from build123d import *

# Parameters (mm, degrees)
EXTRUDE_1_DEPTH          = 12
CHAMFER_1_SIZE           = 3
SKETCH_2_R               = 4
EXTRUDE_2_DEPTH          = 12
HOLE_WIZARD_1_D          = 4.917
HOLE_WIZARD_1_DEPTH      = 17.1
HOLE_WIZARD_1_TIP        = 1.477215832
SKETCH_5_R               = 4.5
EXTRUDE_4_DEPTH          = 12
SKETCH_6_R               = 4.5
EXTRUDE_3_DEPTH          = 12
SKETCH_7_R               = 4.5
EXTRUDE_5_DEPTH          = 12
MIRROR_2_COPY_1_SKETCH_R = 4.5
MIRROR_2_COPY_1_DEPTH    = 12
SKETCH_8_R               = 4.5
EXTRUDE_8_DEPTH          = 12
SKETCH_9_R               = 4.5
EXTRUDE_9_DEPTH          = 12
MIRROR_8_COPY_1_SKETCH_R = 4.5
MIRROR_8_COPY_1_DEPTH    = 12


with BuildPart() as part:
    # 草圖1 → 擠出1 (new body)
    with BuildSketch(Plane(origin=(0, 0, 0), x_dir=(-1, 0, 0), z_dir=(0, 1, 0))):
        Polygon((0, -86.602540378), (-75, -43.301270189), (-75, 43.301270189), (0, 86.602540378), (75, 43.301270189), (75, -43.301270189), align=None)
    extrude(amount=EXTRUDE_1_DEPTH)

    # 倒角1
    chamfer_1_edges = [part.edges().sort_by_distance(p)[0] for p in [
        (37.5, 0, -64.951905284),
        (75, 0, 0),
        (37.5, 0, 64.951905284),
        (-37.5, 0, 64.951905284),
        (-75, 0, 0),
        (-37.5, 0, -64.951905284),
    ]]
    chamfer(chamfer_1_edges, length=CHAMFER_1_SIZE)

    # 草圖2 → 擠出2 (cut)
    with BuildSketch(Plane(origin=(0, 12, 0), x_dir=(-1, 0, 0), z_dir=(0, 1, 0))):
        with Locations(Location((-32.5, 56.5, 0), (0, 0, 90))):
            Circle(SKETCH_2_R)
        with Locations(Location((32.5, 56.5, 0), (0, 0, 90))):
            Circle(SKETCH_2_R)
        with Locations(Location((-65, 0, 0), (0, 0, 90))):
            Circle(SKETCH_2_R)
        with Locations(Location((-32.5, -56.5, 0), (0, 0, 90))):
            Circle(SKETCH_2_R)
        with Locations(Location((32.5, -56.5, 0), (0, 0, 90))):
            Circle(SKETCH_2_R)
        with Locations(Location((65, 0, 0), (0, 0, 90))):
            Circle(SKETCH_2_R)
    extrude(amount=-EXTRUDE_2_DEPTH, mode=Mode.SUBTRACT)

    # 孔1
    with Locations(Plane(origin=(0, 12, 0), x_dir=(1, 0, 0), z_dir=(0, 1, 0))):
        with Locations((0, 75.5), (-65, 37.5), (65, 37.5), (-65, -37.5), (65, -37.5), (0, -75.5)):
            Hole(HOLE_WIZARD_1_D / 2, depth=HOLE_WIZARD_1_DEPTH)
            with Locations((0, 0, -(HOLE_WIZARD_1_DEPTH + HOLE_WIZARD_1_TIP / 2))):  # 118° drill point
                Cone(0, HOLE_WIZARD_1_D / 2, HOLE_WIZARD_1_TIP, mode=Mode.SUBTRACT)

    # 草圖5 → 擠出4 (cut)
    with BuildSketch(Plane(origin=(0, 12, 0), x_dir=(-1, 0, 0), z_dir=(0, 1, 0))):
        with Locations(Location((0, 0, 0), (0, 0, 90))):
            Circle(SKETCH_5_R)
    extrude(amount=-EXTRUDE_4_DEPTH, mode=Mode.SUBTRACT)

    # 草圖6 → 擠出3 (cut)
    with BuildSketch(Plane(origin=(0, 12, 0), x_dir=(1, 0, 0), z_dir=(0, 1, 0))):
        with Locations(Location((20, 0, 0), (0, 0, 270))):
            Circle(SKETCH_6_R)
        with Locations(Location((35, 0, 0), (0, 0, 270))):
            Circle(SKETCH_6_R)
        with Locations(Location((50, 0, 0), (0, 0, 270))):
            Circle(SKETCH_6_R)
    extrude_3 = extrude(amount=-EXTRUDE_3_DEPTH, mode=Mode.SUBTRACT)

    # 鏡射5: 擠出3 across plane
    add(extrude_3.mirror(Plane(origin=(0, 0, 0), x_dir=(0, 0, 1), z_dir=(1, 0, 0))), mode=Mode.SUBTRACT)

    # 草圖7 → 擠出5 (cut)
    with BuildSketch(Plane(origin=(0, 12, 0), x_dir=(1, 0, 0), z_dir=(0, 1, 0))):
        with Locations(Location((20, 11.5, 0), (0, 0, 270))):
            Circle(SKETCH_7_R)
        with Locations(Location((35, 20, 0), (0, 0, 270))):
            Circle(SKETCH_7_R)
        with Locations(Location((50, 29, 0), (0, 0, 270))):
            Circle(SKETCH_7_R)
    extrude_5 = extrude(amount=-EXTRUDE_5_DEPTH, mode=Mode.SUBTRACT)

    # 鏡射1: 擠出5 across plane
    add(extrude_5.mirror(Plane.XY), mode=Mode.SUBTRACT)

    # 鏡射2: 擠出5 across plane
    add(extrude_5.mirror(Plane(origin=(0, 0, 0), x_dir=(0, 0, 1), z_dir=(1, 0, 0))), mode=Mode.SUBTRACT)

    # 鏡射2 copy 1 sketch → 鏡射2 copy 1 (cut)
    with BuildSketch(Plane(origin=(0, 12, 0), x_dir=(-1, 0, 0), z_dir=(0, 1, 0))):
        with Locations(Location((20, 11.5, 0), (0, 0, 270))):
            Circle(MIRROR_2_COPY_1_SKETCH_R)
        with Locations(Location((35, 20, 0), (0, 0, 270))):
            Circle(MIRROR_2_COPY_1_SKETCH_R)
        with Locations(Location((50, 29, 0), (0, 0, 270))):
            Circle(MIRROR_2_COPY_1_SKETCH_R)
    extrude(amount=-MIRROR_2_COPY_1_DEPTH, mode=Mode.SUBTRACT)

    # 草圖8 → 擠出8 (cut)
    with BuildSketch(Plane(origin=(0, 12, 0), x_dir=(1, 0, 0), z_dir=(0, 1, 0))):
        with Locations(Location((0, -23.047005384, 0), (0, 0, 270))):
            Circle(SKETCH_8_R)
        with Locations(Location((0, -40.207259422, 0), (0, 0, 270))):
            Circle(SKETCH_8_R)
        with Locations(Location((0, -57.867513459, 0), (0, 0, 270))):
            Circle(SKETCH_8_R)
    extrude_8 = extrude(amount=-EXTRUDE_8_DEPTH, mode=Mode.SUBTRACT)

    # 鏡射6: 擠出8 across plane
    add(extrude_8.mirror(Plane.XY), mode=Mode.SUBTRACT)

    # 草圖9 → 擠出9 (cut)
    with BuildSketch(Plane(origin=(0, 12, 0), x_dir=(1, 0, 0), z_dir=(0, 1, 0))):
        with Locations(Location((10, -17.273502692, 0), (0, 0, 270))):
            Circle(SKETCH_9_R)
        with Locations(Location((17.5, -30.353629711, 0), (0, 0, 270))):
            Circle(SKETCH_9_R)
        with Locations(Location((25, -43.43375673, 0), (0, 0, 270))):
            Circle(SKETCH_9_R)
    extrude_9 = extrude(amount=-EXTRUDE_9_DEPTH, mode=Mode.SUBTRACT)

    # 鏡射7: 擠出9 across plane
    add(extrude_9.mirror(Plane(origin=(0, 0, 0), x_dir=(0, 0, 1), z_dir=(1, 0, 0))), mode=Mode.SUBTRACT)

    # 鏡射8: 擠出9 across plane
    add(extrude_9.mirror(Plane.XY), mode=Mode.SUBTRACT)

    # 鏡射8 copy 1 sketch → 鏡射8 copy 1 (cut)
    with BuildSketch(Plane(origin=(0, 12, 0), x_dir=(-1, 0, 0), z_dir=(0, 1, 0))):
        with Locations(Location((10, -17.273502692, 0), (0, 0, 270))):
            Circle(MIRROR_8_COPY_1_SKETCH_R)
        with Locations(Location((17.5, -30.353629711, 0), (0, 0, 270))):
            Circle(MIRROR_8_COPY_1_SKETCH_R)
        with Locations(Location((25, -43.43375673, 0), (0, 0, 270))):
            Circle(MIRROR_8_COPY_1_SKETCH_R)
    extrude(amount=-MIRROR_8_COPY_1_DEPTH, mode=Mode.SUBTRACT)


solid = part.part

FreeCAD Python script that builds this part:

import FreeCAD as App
import Part
import Sketcher
Q = App.Units.Quantity


def edges_at(feature, points):
    """Names of the edges that pass closest to the given points."""
    edges = feature.Shape.Edges
    near = lambda p: min(range(len(edges)), key=lambda i: edges[i].distToShape(Part.Vertex(*p))[0])
    return sorted({f"Edge{near(p) + 1}" for p in points})

doc = App.newDocument("Part")
body = doc.addObject("PartDesign::Body", "Body")

sketch1 = body.newObject("Sketcher::SketchObject", "Sketch")
sketch1.AttachmentSupport = (doc.getObject("XZ_Plane"), [""])
sketch1.MapMode = "FlatFace"
sketch1.addGeometry(Part.LineSegment(App.Vector(75, -43, 0), App.Vector(0, -87, 0)), False)
sketch1.addGeometry(Part.LineSegment(App.Vector(0, -87, 0), App.Vector(-75, -43, 0)), False)
sketch1.addGeometry(Part.LineSegment(App.Vector(-75, -43, 0), App.Vector(-75, 43, 0)), False)
sketch1.addGeometry(Part.LineSegment(App.Vector(-75, 43, 0), App.Vector(0, 87, 0)), False)
sketch1.addGeometry(Part.LineSegment(App.Vector(0, 87, 0), App.Vector(75, 43, 0)), False)
sketch1.addGeometry(Part.LineSegment(App.Vector(75, 43, 0), App.Vector(75, -43, 0)), False)
sketch1.addConstraint(Sketcher.Constraint("Coincident", 0, 2, 1, 1))
sketch1.addConstraint(Sketcher.Constraint("Coincident", 1, 2, 2, 1))
sketch1.addConstraint(Sketcher.Constraint("Coincident", 2, 2, 3, 1))
sketch1.addConstraint(Sketcher.Constraint("Coincident", 3, 2, 4, 1))
sketch1.addConstraint(Sketcher.Constraint("Coincident", 4, 2, 5, 1))
sketch1.addConstraint(Sketcher.Constraint("Coincident", 5, 2, 0, 1))
sketch1.addConstraint(Sketcher.Constraint("Vertical", 2))
sketch1.addConstraint(Sketcher.Constraint("Vertical", 5))
sketch1.addConstraint(Sketcher.Constraint("Symmetric", 0, 2, 3, 2, -1, 1))
sketch1.addConstraint(Sketcher.Constraint("Symmetric", 1, 2, 4, 2, -1, 1))
sketch1.addConstraint(Sketcher.Constraint("PointOnObject", 0, 2, -2))
sketch1.addConstraint(Sketcher.Constraint("Parallel", 0, 3))
sketch1.addConstraint(Sketcher.Constraint("Horizontal", 2, 2, 4, 2))
sketch1.addConstraint(Sketcher.Constraint("Angle", 0, Q("-150 deg")))
sketch1.addConstraint(Sketcher.Constraint("DistanceX", 1, 2, -1, 1, 75.0))
sketch1.addConstraint(Sketcher.Constraint("DistanceY", 2, 1, 2, 2, 86.60254))
pad1 = body.newObject("PartDesign::Pad", "Pad")
pad1.Profile = sketch1
pad1.Length = 12
pad1.Reversed = True
doc.recompute()

chamfer = body.newObject("PartDesign::Chamfer", "Chamfer")
chamfer.Base = (pad1, edges_at(pad1, [
    (37.5, 0, -64.952),
    (75, 0, 0),
    (37.5, 0, 64.952),
    (-37.5, 0, 64.952),
    (-75, 0, 0),
    (-37.5, 0, -64.952),
]))
chamfer.Size = 3

sketch2 = body.newObject("Sketcher::SketchObject", "Sketch001")
sketch2.AttachmentSupport = (doc.getObject("XZ_Plane"), [""])
sketch2.MapMode = "FlatFace"
sketch2.AttachmentOffset = App.Placement(App.Vector(0, 0, -12), App.Rotation())
sketch2.addGeometry(Part.Circle(App.Vector(32.5, 56.5, 0), App.Vector(0, 0, 1), 4), False)
sketch2.addGeometry(Part.Circle(App.Vector(-32.5, 56.5, 0), App.Vector(0, 0, 1), 4), False)
sketch2.addGeometry(Part.Circle(App.Vector(65, 0, 0), App.Vector(0, 0, 1), 4), False)
sketch2.addGeometry(Part.Circle(App.Vector(32.5, -56.5, 0), App.Vector(0, 0, 1), 4), False)
sketch2.addGeometry(Part.Circle(App.Vector(-32.5, -56.5, 0), App.Vector(0, 0, 1), 4), False)
sketch2.addGeometry(Part.Circle(App.Vector(-65, 0, 0), App.Vector(0, 0, 1), 4), False)
sketch2.addConstraint(Sketcher.Constraint("Equal", 0, 1))
sketch2.addConstraint(Sketcher.Constraint("Equal", 1, 2))
sketch2.addConstraint(Sketcher.Constraint("Equal", 2, 3))
sketch2.addConstraint(Sketcher.Constraint("Equal", 3, 4))
sketch2.addConstraint(Sketcher.Constraint("Equal", 4, 5))
sketch2.addConstraint(Sketcher.Constraint("Symmetric", 1, 3, 3, 3, -1, 1))
sketch2.addConstraint(Sketcher.Constraint("Symmetric", 0, 3, 4, 3, -1, 1))
sketch2.addConstraint(Sketcher.Constraint("Symmetric", 2, 3, 5, 3, -1, 1))
sketch2.addConstraint(Sketcher.Constraint("Symmetric", 0, 3, 1, 3, -2))
sketch2.addConstraint(Sketcher.Constraint("PointOnObject", 2, 3, -1))
sketch2.addConstraint(Sketcher.Constraint("Diameter", 0, 8.0))
sketch2.addConstraint(Sketcher.Constraint("DistanceX", -1, 1, 2, 3, 65.0))
sketch2.addConstraint(Sketcher.Constraint("DistanceX", 1, 3, 0, 3, 65.0))
sketch2.addConstraint(Sketcher.Constraint("DistanceY", 3, 3, 0, 3, 113.0))
pocket1 = body.newObject("PartDesign::Pocket", "Pocket")
pocket1.Profile = sketch2
pocket1.Length = 12
pocket1.Reversed = True

sketch3 = body.newObject("Sketcher::SketchObject", "Sketch002")
sketch3.AttachmentSupport = (doc.getObject("XZ_Plane"), [""])
sketch3.MapMode = "FlatFace"
sketch3.AttachmentOffset = App.Placement(App.Vector(0, 0, -12), App.Rotation())
sketch3.addGeometry(Part.Circle(App.Vector(0, -75.5, 0), App.Vector(0, 0, 1), 2.5), False)
sketch3.addGeometry(Part.Circle(App.Vector(-65, -37.5, 0), App.Vector(0, 0, 1), 2.5), False)
sketch3.addGeometry(Part.Circle(App.Vector(65, -37.5, 0), App.Vector(0, 0, 1), 2.5), False)
sketch3.addGeometry(Part.Circle(App.Vector(-65, 37.5, 0), App.Vector(0, 0, 1), 2.5), False)
sketch3.addGeometry(Part.Circle(App.Vector(65, 37.5, 0), App.Vector(0, 0, 1), 2.5), False)
sketch3.addGeometry(Part.Circle(App.Vector(0, 75.5, 0), App.Vector(0, 0, 1), 2.5), False)
sketch3.addConstraint(Sketcher.Constraint("Equal", 0, 1))
sketch3.addConstraint(Sketcher.Constraint("Equal", 1, 2))
sketch3.addConstraint(Sketcher.Constraint("Equal", 2, 3))
sketch3.addConstraint(Sketcher.Constraint("Equal", 3, 4))
sketch3.addConstraint(Sketcher.Constraint("Equal", 4, 5))
sketch3.addConstraint(Sketcher.Constraint("Symmetric", 2, 3, 3, 3, -1, 1))
sketch3.addConstraint(Sketcher.Constraint("Symmetric", 1, 3, 4, 3, -1, 1))
sketch3.addConstraint(Sketcher.Constraint("Symmetric", 0, 3, 5, 3, -1, 1))
sketch3.addConstraint(Sketcher.Constraint("Symmetric", 1, 3, 2, 3, -2))
sketch3.addConstraint(Sketcher.Constraint("PointOnObject", 0, 3, -2))
sketch3.addConstraint(Sketcher.Constraint("Diameter", 0, 4.917))
sketch3.addConstraint(Sketcher.Constraint("DistanceX", 1, 3, -1, 1, 65.0))
sketch3.addConstraint(Sketcher.Constraint("DistanceY", 0, 3, 1, 3, 38.0))
sketch3.addConstraint(Sketcher.Constraint("DistanceY", 1, 3, 3, 3, 75.0))
doc.recompute()
hole = body.newObject("PartDesign::Hole", "Hole")
hole.Profile = sketch3
hole.ThreadType = "None"
hole.Diameter = 4.917
hole.DepthType = "Dimension"
hole.Depth = 17.1
hole.DrillPoint = "Angled"
hole.DrillPointAngle = 118
hole.Reversed = True

sketch4 = body.newObject("Sketcher::SketchObject", "Sketch003")
sketch4.AttachmentSupport = (doc.getObject("XZ_Plane"), [""])
sketch4.MapMode = "FlatFace"
sketch4.AttachmentOffset = App.Placement(App.Vector(0, 0, -12), App.Rotation())
sketch4.addGeometry(Part.Circle(App.Vector(0, 0, 0), App.Vector(0, 0, 1), 4.5), False)
sketch4.addConstraint(Sketcher.Constraint("Coincident", 0, 3, -1, 1))
sketch4.addConstraint(Sketcher.Constraint("Diameter", 0, 9.0))
pocket2 = body.newObject("PartDesign::Pocket", "Pocket001")
pocket2.Profile = sketch4
pocket2.Length = 12
pocket2.Reversed = True

sketch5 = body.newObject("Sketcher::SketchObject", "Sketch004")
sketch5.AttachmentSupport = (doc.getObject("XZ_Plane"), [""])
sketch5.MapMode = "FlatFace"
sketch5.AttachmentOffset = App.Placement(App.Vector(0, 0, -12), App.Rotation())
sketch5.addGeometry(Part.Circle(App.Vector(20, 0, 0), App.Vector(0, 0, 1), 4.5), False)
sketch5.addGeometry(Part.Circle(App.Vector(35, 0, 0), App.Vector(0, 0, 1), 4.5), False)
sketch5.addGeometry(Part.Circle(App.Vector(50, 0, 0), App.Vector(0, 0, 1), 4.5), False)
sketch5.addConstraint(Sketcher.Constraint("Equal", 0, 1))
sketch5.addConstraint(Sketcher.Constraint("Equal", 1, 2))
sketch5.addConstraint(Sketcher.Constraint("PointOnObject", 0, 3, -1))
sketch5.addConstraint(Sketcher.Constraint("PointOnObject", 1, 3, -1))
sketch5.addConstraint(Sketcher.Constraint("PointOnObject", 2, 3, -1))
sketch5.addConstraint(Sketcher.Constraint("Diameter", 0, 9.0))
sketch5.addConstraint(Sketcher.Constraint("DistanceX", -1, 1, 0, 3, 20.0))
sketch5.addConstraint(Sketcher.Constraint("DistanceX", -1, 1, 1, 3, 35.0))
sketch5.addConstraint(Sketcher.Constraint("DistanceX", -1, 1, 2, 3, 50.0))
pocket3 = body.newObject("PartDesign::Pocket", "Pocket002")
pocket3.Profile = sketch5
pocket3.Length = 12
pocket3.Reversed = True
doc.recompute()

mirrored = body.newObject("PartDesign::Mirrored", "Mirrored")
mirrored.Originals = [pocket3]
mirrored.MirrorPlane = (doc.getObject("YZ_Plane"), [""])
body.Tip = mirrored

sketch6 = body.newObject("Sketcher::SketchObject", "Sketch005")
sketch6.AttachmentSupport = (doc.getObject("XZ_Plane"), [""])
sketch6.MapMode = "FlatFace"
sketch6.AttachmentOffset = App.Placement(App.Vector(0, 0, -12), App.Rotation())
sketch6.addGeometry(Part.Circle(App.Vector(20, -11.5, 0), App.Vector(0, 0, 1), 4.5), False)
sketch6.addGeometry(Part.Circle(App.Vector(35, -20, 0), App.Vector(0, 0, 1), 4.5), False)
sketch6.addGeometry(Part.Circle(App.Vector(50, -29, 0), App.Vector(0, 0, 1), 4.5), False)
sketch6.addConstraint(Sketcher.Constraint("Equal", 0, 1))
sketch6.addConstraint(Sketcher.Constraint("Equal", 1, 2))
sketch6.addConstraint(Sketcher.Constraint("Diameter", 0, 9.0))
sketch6.addConstraint(Sketcher.Constraint("DistanceX", -1, 1, 0, 3, 20.0))
sketch6.addConstraint(Sketcher.Constraint("DistanceX", -1, 1, 1, 3, 35.0))
sketch6.addConstraint(Sketcher.Constraint("DistanceY", 1, 3, -1, 1, 20.0))
sketch6.addConstraint(Sketcher.Constraint("DistanceX", -1, 1, 2, 3, 50.0))
sketch6.addConstraint(Sketcher.Constraint("DistanceY", 2, 3, -1, 1, 29.0))
sketch6.addConstraint(Sketcher.Constraint("DistanceY", 0, 3, -1, 1, 11.5))
pocket4 = body.newObject("PartDesign::Pocket", "Pocket003")
pocket4.Profile = sketch6
pocket4.Length = 12
pocket4.Reversed = True
doc.recompute()

mirrored2 = body.newObject("PartDesign::Mirrored", "Mirrored001")
mirrored2.Originals = [pocket4]
mirrored2.MirrorPlane = (doc.getObject("XY_Plane"), [""])
body.Tip = mirrored2
doc.recompute()

mirrored3 = body.newObject("PartDesign::Mirrored", "Mirrored002")
mirrored3.Originals = [pocket4]
mirrored3.MirrorPlane = (doc.getObject("YZ_Plane"), [""])
body.Tip = mirrored3

sketch7 = body.newObject("Sketcher::SketchObject", "Sketch006")
sketch7.AttachmentSupport = (doc.getObject("XZ_Plane"), [""])
sketch7.MapMode = "FlatFace"
sketch7.AttachmentOffset = App.Placement(App.Vector(0, 0, -12), App.Rotation())
sketch7.addGeometry(Part.Circle(App.Vector(-20, 11.5, 0), App.Vector(0, 0, 1), 4.5), False)
sketch7.addGeometry(Part.Circle(App.Vector(-35, 20, 0), App.Vector(0, 0, 1), 4.5), False)
sketch7.addGeometry(Part.Circle(App.Vector(-50, 29, 0), App.Vector(0, 0, 1), 4.5), False)
sketch7.addConstraint(Sketcher.Constraint("Equal", 0, 1))
sketch7.addConstraint(Sketcher.Constraint("Equal", 1, 2))
sketch7.addConstraint(Sketcher.Constraint("Diameter", 0, 9.0))
sketch7.addConstraint(Sketcher.Constraint("DistanceX", 0, 3, -1, 1, 20.0))
sketch7.addConstraint(Sketcher.Constraint("DistanceX", 1, 3, -1, 1, 35.0))
sketch7.addConstraint(Sketcher.Constraint("DistanceY", -1, 1, 1, 3, 20.0))
sketch7.addConstraint(Sketcher.Constraint("DistanceX", 2, 3, -1, 1, 50.0))
sketch7.addConstraint(Sketcher.Constraint("DistanceY", -1, 1, 2, 3, 29.0))
sketch7.addConstraint(Sketcher.Constraint("DistanceY", -1, 1, 0, 3, 11.5))
pocket5 = body.newObject("PartDesign::Pocket", "Pocket004")
pocket5.Profile = sketch7
pocket5.Length = 12
pocket5.Reversed = True

sketch8 = body.newObject("Sketcher::SketchObject", "Sketch007")
sketch8.AttachmentSupport = (doc.getObject("XZ_Plane"), [""])
sketch8.MapMode = "FlatFace"
sketch8.AttachmentOffset = App.Placement(App.Vector(0, 0, -12), App.Rotation())
sketch8.addGeometry(Part.Circle(App.Vector(0, 23, 0), App.Vector(0, 0, 1), 4.5), False)
sketch8.addGeometry(Part.Circle(App.Vector(0, 40.2, 0), App.Vector(0, 0, 1), 4.5), False)
sketch8.addGeometry(Part.Circle(App.Vector(0, 57.9, 0), App.Vector(0, 0, 1), 4.5), False)
sketch8.addConstraint(Sketcher.Constraint("Equal", 0, 1))
sketch8.addConstraint(Sketcher.Constraint("Equal", 1, 2))
sketch8.addConstraint(Sketcher.Constraint("PointOnObject", 0, 3, -2))
sketch8.addConstraint(Sketcher.Constraint("PointOnObject", 1, 3, -2))
sketch8.addConstraint(Sketcher.Constraint("PointOnObject", 2, 3, -2))
sketch8.addConstraint(Sketcher.Constraint("Diameter", 0, 9.0))
sketch8.addConstraint(Sketcher.Constraint("DistanceY", -1, 1, 1, 3, 40.207259))
sketch8.addConstraint(Sketcher.Constraint("DistanceY", 0, 3, 2, 3, 34.820508))
sketch8.addConstraint(Sketcher.Constraint("DistanceY", -1, 1, 0, 3, 23.047005))
pocket6 = body.newObject("PartDesign::Pocket", "Pocket005")
pocket6.Profile = sketch8
pocket6.Length = 12
pocket6.Reversed = True
doc.recompute()

mirrored4 = body.newObject("PartDesign::Mirrored", "Mirrored003")
mirrored4.Originals = [pocket6]
mirrored4.MirrorPlane = (doc.getObject("XY_Plane"), [""])
body.Tip = mirrored4

sketch9 = body.newObject("Sketcher::SketchObject", "Sketch008")
sketch9.AttachmentSupport = (doc.getObject("XZ_Plane"), [""])
sketch9.MapMode = "FlatFace"
sketch9.AttachmentOffset = App.Placement(App.Vector(0, 0, -12), App.Rotation())
sketch9.addGeometry(Part.Circle(App.Vector(10, 17.3, 0), App.Vector(0, 0, 1), 4.5), False)
sketch9.addGeometry(Part.Circle(App.Vector(17.5, 30.4, 0), App.Vector(0, 0, 1), 4.5), False)
sketch9.addGeometry(Part.Circle(App.Vector(25, 43.4, 0), App.Vector(0, 0, 1), 4.5), False)
sketch9.addConstraint(Sketcher.Constraint("Equal", 0, 1))
sketch9.addConstraint(Sketcher.Constraint("Equal", 1, 2))
sketch9.addConstraint(Sketcher.Constraint("Diameter", 0, 9.0))
sketch9.addConstraint(Sketcher.Constraint("DistanceX", -1, 1, 0, 3, 10.0))
sketch9.addConstraint(Sketcher.Constraint("DistanceX", -1, 1, 2, 3, 25.0))
sketch9.addConstraint(Sketcher.Constraint("DistanceX", -1, 1, 1, 3, 17.5))
sketch9.addConstraint(Sketcher.Constraint("DistanceY", -1, 1, 1, 3, 30.35363))
sketch9.addConstraint(Sketcher.Constraint("DistanceY", -1, 1, 0, 3, 17.273503))
sketch9.addConstraint(Sketcher.Constraint("DistanceY", -1, 1, 2, 3, 43.433757))
pocket7 = body.newObject("PartDesign::Pocket", "Pocket006")
pocket7.Profile = sketch9
pocket7.Length = 12
pocket7.Reversed = True
doc.recompute()

mirrored5 = body.newObject("PartDesign::Mirrored", "Mirrored004")
mirrored5.Originals = [pocket7]
mirrored5.MirrorPlane = (doc.getObject("YZ_Plane"), [""])
body.Tip = mirrored5
doc.recompute()

mirrored6 = body.newObject("PartDesign::Mirrored", "Mirrored005")
mirrored6.Originals = [pocket7]
mirrored6.MirrorPlane = (doc.getObject("XY_Plane"), [""])
body.Tip = mirrored6

sketch10 = body.newObject("Sketcher::SketchObject", "Sketch009")
sketch10.AttachmentSupport = (doc.getObject("XZ_Plane"), [""])
sketch10.MapMode = "FlatFace"
sketch10.AttachmentOffset = App.Placement(App.Vector(0, 0, -12), App.Rotation())
sketch10.addGeometry(Part.Circle(App.Vector(-10, -17.3, 0), App.Vector(0, 0, 1), 4.5), False)
sketch10.addGeometry(Part.Circle(App.Vector(-17.5, -30.4, 0), App.Vector(0, 0, 1), 4.5), False)
sketch10.addGeometry(Part.Circle(App.Vector(-25, -43.4, 0), App.Vector(0, 0, 1), 4.5), False)
sketch10.addConstraint(Sketcher.Constraint("Equal", 0, 1))
sketch10.addConstraint(Sketcher.Constraint("Equal", 1, 2))
sketch10.addConstraint(Sketcher.Constraint("Diameter", 0, 9.0))
sketch10.addConstraint(Sketcher.Constraint("DistanceX", 0, 3, -1, 1, 10.0))
sketch10.addConstraint(Sketcher.Constraint("DistanceX", 2, 3, -1, 1, 25.0))
sketch10.addConstraint(Sketcher.Constraint("DistanceX", 1, 3, -1, 1, 17.5))
sketch10.addConstraint(Sketcher.Constraint("DistanceY", 1, 3, -1, 1, 30.35363))
sketch10.addConstraint(Sketcher.Constraint("DistanceY", 0, 3, -1, 1, 17.273503))
sketch10.addConstraint(Sketcher.Constraint("DistanceY", 2, 3, -1, 1, 43.433757))
pocket8 = body.newObject("PartDesign::Pocket", "Pocket007")
pocket8.Profile = sketch10
pocket8.Length = 12
pocket8.Reversed = True

doc.recompute()
